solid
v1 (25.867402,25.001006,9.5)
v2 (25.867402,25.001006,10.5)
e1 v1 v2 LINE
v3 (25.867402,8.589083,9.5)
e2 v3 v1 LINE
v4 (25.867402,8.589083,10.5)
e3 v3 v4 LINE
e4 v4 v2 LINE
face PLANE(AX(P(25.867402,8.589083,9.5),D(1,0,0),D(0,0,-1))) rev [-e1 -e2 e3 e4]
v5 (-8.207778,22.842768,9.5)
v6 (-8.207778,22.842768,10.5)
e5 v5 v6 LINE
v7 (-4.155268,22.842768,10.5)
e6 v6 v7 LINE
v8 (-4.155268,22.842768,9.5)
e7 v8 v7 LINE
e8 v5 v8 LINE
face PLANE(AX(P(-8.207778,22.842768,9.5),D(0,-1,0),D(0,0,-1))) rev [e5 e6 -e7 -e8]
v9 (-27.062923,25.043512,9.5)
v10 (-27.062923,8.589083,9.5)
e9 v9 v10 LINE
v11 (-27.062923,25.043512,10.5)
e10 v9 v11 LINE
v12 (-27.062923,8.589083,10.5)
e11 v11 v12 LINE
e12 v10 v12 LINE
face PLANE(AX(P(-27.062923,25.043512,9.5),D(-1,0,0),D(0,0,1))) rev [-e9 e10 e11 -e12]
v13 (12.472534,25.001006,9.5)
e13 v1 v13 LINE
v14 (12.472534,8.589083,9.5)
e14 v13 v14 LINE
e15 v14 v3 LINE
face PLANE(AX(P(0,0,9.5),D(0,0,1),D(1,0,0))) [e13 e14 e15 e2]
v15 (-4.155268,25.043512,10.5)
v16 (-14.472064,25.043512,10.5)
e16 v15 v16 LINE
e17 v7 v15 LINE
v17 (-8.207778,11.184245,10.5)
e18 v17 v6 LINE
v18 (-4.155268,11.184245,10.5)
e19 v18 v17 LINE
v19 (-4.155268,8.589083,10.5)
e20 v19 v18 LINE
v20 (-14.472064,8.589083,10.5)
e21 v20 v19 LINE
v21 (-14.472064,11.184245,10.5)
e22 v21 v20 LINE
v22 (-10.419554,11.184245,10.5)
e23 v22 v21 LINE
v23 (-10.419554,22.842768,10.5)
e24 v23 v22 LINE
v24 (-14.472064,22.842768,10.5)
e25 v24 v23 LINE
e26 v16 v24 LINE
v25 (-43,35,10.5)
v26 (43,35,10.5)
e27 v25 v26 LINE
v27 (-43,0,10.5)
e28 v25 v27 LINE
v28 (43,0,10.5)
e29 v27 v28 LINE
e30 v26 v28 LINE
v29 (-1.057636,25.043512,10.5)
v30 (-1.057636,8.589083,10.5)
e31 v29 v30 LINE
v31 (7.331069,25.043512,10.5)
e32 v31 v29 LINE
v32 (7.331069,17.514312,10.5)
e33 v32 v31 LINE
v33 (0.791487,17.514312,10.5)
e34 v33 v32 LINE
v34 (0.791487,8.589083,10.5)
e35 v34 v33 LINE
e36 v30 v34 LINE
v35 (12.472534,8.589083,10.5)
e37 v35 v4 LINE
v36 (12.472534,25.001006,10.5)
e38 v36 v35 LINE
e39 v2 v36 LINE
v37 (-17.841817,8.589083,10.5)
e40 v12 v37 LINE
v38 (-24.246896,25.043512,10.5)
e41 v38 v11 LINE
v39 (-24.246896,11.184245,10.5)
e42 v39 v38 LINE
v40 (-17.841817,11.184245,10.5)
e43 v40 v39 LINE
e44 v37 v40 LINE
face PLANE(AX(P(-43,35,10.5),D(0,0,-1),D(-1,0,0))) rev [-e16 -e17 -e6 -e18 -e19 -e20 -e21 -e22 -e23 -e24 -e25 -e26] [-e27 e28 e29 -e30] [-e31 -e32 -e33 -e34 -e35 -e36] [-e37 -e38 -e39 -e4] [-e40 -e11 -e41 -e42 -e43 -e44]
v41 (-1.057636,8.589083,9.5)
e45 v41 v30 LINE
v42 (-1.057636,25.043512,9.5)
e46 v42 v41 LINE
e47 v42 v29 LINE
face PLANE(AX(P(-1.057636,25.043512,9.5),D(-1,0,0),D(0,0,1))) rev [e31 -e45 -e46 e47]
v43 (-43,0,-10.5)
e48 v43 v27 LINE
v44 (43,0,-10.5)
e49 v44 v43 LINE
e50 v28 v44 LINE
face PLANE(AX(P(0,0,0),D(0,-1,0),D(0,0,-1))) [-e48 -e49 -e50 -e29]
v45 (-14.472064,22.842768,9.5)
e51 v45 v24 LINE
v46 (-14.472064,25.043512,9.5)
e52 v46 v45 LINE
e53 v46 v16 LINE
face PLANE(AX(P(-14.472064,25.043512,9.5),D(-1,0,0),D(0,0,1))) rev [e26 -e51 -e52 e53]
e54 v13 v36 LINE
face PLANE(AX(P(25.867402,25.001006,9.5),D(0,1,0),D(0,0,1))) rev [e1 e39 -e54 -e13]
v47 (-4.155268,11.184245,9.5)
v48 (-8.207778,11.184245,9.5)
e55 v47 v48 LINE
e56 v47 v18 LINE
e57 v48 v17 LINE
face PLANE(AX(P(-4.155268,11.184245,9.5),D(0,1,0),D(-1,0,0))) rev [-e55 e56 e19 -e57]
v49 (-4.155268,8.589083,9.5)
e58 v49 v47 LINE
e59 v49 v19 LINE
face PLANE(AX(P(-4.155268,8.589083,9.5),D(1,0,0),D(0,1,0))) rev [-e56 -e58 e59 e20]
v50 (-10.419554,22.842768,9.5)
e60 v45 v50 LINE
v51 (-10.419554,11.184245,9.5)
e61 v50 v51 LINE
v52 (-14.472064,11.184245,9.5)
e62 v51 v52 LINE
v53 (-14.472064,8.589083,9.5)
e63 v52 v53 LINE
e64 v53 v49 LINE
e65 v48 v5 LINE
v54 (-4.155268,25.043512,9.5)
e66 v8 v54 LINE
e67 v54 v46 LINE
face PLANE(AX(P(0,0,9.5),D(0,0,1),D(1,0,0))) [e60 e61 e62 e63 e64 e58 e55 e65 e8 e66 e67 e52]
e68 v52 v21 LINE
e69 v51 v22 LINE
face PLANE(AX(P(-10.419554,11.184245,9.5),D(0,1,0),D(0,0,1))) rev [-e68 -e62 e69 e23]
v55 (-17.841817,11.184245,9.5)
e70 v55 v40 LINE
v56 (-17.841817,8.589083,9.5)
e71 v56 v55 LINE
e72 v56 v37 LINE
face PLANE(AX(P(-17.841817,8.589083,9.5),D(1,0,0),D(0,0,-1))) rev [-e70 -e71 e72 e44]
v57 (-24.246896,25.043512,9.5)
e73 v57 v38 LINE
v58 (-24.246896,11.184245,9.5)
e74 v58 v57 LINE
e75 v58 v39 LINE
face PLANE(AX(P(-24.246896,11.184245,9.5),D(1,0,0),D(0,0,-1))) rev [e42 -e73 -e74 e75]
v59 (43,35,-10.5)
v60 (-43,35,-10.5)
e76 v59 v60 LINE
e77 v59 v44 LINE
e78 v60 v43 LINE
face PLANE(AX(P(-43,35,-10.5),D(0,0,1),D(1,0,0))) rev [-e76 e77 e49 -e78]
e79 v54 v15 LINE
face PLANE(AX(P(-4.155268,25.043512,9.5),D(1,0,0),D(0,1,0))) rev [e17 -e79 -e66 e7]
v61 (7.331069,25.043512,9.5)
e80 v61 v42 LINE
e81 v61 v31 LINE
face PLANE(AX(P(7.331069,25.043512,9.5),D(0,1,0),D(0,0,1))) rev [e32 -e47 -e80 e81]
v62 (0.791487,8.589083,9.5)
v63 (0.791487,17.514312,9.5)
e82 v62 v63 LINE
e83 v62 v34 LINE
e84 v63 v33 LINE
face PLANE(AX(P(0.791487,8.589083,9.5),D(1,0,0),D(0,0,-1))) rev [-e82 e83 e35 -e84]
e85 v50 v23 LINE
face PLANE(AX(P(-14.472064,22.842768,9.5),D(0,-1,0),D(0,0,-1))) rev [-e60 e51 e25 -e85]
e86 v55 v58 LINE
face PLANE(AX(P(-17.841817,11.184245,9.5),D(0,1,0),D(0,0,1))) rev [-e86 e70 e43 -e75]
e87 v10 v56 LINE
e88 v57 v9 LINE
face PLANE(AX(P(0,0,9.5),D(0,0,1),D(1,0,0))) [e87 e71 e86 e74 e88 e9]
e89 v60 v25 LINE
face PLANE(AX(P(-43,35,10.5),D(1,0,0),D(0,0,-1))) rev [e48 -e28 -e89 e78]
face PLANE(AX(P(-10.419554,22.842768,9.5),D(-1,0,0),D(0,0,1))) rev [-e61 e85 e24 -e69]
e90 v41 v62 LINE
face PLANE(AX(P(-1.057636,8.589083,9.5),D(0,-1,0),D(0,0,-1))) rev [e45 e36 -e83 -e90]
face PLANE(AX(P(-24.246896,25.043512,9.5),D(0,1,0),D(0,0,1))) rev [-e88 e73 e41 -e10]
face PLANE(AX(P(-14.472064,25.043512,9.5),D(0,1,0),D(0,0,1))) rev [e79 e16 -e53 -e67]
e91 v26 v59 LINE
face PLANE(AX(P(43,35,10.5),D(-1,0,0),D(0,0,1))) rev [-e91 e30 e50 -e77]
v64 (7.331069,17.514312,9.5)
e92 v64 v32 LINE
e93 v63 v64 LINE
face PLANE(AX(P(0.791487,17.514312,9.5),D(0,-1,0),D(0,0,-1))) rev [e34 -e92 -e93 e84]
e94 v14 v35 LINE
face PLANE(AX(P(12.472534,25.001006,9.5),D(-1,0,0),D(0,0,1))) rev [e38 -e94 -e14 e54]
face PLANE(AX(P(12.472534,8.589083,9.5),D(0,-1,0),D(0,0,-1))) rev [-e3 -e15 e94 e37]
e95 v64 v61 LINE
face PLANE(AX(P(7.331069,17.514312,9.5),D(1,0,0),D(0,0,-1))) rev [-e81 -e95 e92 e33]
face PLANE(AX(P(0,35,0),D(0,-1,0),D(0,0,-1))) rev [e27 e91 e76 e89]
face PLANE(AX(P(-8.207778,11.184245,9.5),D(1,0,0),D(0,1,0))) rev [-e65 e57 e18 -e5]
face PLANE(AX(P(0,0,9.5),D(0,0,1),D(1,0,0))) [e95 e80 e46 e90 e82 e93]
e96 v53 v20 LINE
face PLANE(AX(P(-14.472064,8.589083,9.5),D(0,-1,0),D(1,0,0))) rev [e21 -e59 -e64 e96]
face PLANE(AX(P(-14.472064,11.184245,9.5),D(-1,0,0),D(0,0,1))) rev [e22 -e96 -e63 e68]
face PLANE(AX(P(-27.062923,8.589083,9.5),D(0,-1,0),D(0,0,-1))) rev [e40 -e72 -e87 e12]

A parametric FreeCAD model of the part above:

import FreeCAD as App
import Part
import Sketcher

doc = App.newDocument("Part")
body = doc.addObject("PartDesign::Body", "Body")

sketch1 = body.newObject("Sketcher::SketchObject", "Sketch")
sketch1.AttachmentSupport = (doc.getObject("XZ_Plane"), [""])
sketch1.MapMode = "FlatFace"
sketch1.addGeometry(Part.LineSegment(App.Vector(-43, -10, 0), App.Vector(-43, 10, 0)), False)
sketch1.addGeometry(Part.LineSegment(App.Vector(-43, 10, 0), App.Vector(43, 10, 0)), False)
sketch1.addGeometry(Part.LineSegment(App.Vector(43, 10, 0), App.Vector(43, -10, 0)), False)
sketch1.addGeometry(Part.LineSegment(App.Vector(43, -10, 0), App.Vector(-43, -10, 0)), False)
sketch1.addConstraint(Sketcher.Constraint("Coincident", 0, 2, 1, 1))
sketch1.addConstraint(Sketcher.Constraint("Coincident", 1, 2, 2, 1))
sketch1.addConstraint(Sketcher.Constraint("Coincident", 2, 2, 3, 1))
sketch1.addConstraint(Sketcher.Constraint("Coincident", 3, 2, 0, 1))
sketch1.addConstraint(Sketcher.Constraint("Vertical", 0))
sketch1.addConstraint(Sketcher.Constraint("Horizontal", 1))
sketch1.addConstraint(Sketcher.Constraint("Vertical", 2))
sketch1.addConstraint(Sketcher.Constraint("Horizontal", 3))
sketch1.addConstraint(Sketcher.Constraint("Symmetric", 0, 2, 2, 2, -1, 1))
sketch1.addConstraint(Sketcher.Constraint("DistanceX", 1, 1, 1, 2, 86.0))
sketch1.addConstraint(Sketcher.Constraint("DistanceY", 0, 1, 0, 2, 21.0))
pad1 = body.newObject("PartDesign::Pad", "Pad")
pad1.Profile = sketch1
pad1.Length = 35
pad1.Reversed = True

sketch2 = body.newObject("Sketcher::SketchObject", "Sketch001")
sketch2.AttachmentSupport = (doc.getObject("XY_Plane"), [""])
sketch2.MapMode = "FlatFace"
sketch2.AttachmentOffset = App.Placement(App.Vector(0, 0, 10.5), App.Rotation())
sketch2.addGeometry(Part.LineSegment(App.Vector(-27.1, 25, 0), App.Vector(-27.1, 8.6, 0)), False)
sketch2.addGeometry(Part.LineSegment(App.Vector(-27.1, 8.6, 0), App.Vector(-17.8, 8.6, 0)), False)
sketch2.addGeometry(Part.LineSegment(App.Vector(-17.8, 8.6, 0), App.Vector(-17.8, 11.2, 0)), False)
sketch2.addGeometry(Part.LineSegment(App.Vector(-17.8, 11.2, 0), App.Vector(-24.2, 11.2, 0)), False)
sketch2.addGeometry(Part.LineSegment(App.Vector(-24.2, 11.2, 0), App.Vector(-24.2, 25, 0)), False)
sketch2.addGeometry(Part.LineSegment(App.Vector(-24.2, 25, 0), App.Vector(-27.1, 25, 0)), False)
sketch2.addGeometry(Part.LineSegment(App.Vector(-4.2, 25, 0), App.Vector(-14.5, 25, 0)), False)
sketch2.addGeometry(Part.LineSegment(App.Vector(-14.5, 25, 0), App.Vector(-14.5, 22.8, 0)), False)
sketch2.addGeometry(Part.LineSegment(App.Vector(-14.5, 22.8, 0), App.Vector(-10.4, 22.8, 0)), False)
sketch2.addGeometry(Part.LineSegment(App.Vector(-10.4, 22.8, 0), App.Vector(-10.4, 11.2, 0)), False)
sketch2.addGeometry(Part.LineSegment(App.Vector(-10.4, 11.2, 0), App.Vector(-14.5, 11.2, 0)), False)
sketch2.addGeometry(Part.LineSegment(App.Vector(-14.5, 11.2, 0), App.Vector(-14.5, 8.6, 0)), False)
sketch2.addGeometry(Part.LineSegment(App.Vector(-14.5, 8.6, 0), App.Vector(-4.2, 8.6, 0)), False)
sketch2.addGeometry(Part.LineSegment(App.Vector(-4.2, 8.6, 0), App.Vector(-4.2, 11.2, 0)), False)
sketch2.addGeometry(Part.LineSegment(App.Vector(-4.2, 11.2, 0), App.Vector(-8.2, 11.2, 0)), False)
sketch2.addGeometry(Part.LineSegment(App.Vector(-8.2, 11.2, 0), App.Vector(-8.2, 22.8, 0)), False)
sketch2.addGeometry(Part.LineSegment(App.Vector(-8.2, 22.8, 0), App.Vector(-4.2, 22.8, 0)), False)
sketch2.addGeometry(Part.LineSegment(App.Vector(-4.2, 22.8, 0), App.Vector(-4.2, 25, 0)), False)
sketch2.addGeometry(Part.LineSegment(App.Vector(-1.1, 25, 0), App.Vector(-1.1, 8.6, 0)), False)
sketch2.addGeometry(Part.LineSegment(App.Vector(-1.1, 8.6, 0), App.Vector(0.8, 8.6, 0)), False)
sketch2.addGeometry(Part.LineSegment(App.Vector(0.8, 8.6, 0), App.Vector(0.8, 17.5, 0)), False)
sketch2.addGeometry(Part.LineSegment(App.Vector(0.8, 17.5, 0), App.Vector(7.3, 17.5, 0)), False)
sketch2.addGeometry(Part.LineSegment(App.Vector(7.3, 17.5, 0), App.Vector(7.3, 25, 0)), False)
sketch2.addGeometry(Part.LineSegment(App.Vector(7.3, 25, 0), App.Vector(-1.1, 25, 0)), False)
sketch2.addGeometry(Part.LineSegment(App.Vector(12.5, 25, 0), App.Vector(12.5, 8.6, 0)), False)
sketch2.addGeometry(Part.LineSegment(App.Vector(12.5, 8.6, 0), App.Vector(25.9, 8.6, 0)), False)
sketch2.addGeometry(Part.LineSegment(App.Vector(25.9, 8.6, 0), App.Vector(25.9, 25, 0)), False)
sketch2.addGeometry(Part.LineSegment(App.Vector(25.9, 25, 0), App.Vector(12.5, 25, 0)), False)
sketch2.addConstraint(Sketcher.Constraint("Coincident", 0, 2, 1, 1))
sketch2.addConstraint(Sketcher.Constraint("Coincident", 1, 2, 2, 1))
sketch2.addConstraint(Sketcher.Constraint("Coincident", 2, 2, 3, 1))
sketch2.addConstraint(Sketcher.Constraint("Coincident", 3, 2, 4, 1))
sketch2.addConstraint(Sketcher.Constraint("Coincident", 4, 2, 5, 1))
sketch2.addConstraint(Sketcher.Constraint("Coincident", 5, 2, 0, 1))
sketch2.addConstraint(Sketcher.Constraint("Coincident", 6, 2, 7, 1))
sketch2.addConstraint(Sketcher.Constraint("Coincident", 7, 2, 8, 1))
sketch2.addConstraint(Sketcher.Constraint("Coincident", 8, 2, 9, 1))
sketch2.addConstraint(Sketcher.Constraint("Coincident", 9, 2, 10, 1))
sketch2.addConstraint(Sketcher.Constraint("Coincident", 10, 2, 11, 1))
sketch2.addConstraint(Sketcher.Constraint("Coincident", 11, 2, 12, 1))
sketch2.addConstraint(Sketcher.Constraint("Coincident", 12, 2, 13, 1))
sketch2.addConstraint(Sketcher.Constraint("Coincident", 13, 2, 14, 1))
sketch2.addConstraint(Sketcher.Constraint("Coincident", 14, 2, 15, 1))
sketch2.addConstraint(Sketcher.Constraint("Coincident", 15, 2, 16, 1))
sketch2.addConstraint(Sketcher.Constraint("Coincident", 16, 2, 17, 1))
sketch2.addConstraint(Sketcher.Constraint("Coincident", 17, 2, 6, 1))
sketch2.addConstraint(Sketcher.Constraint("Coincident", 18, 2, 19, 1))
sketch2.addConstraint(Sketcher.Constraint("Coincident", 19, 2, 20, 1))
sketch2.addConstraint(Sketcher.Constraint("Coincident", 20, 2, 21, 1))
sketch2.addConstraint(Sketcher.Constraint("Coincident", 21, 2, 22, 1))
sketch2.addConstraint(Sketcher.Constraint("Coincident", 22, 2, 23, 1))
sketch2.addConstraint(Sketcher.Constraint("Coincident", 23, 2, 18, 1))
sketch2.addConstraint(Sketcher.Constraint("Coincident", 24, 2, 25, 1))
sketch2.addConstraint(Sketcher.Constraint("Coincident", 25, 2, 26, 1))
sketch2.addConstraint(Sketcher.Constraint("Coincident", 26, 2, 27, 1))
sketch2.addConstraint(Sketcher.Constraint("Coincident", 27, 2, 24, 1))
sketch2.addConstraint(Sketcher.Constraint("Vertical", 0))
sketch2.addConstraint(Sketcher.Constraint("Horizontal", 1))
sketch2.addConstraint(Sketcher.Constraint("Vertical", 2))
sketch2.addConstraint(Sketcher.Constraint("Horizontal", 3))
sketch2.addConstraint(Sketcher.Constraint("Vertical", 4))
sketch2.addConstraint(Sketcher.Constraint("Horizontal", 5))
sketch2.addConstraint(Sketcher.Constraint("Horizontal", 6))
sketch2.addConstraint(Sketcher.Constraint("Vertical", 7))
sketch2.addConstraint(Sketcher.Constraint("Horizontal", 8))
sketch2.addConstraint(Sketcher.Constraint("Vertical", 9))
sketch2.addConstraint(Sketcher.Constraint("Horizontal", 10))
sketch2.addConstraint(Sketcher.Constraint("Vertical", 11))
sketch2.addConstraint(Sketcher.Constraint("Horizontal", 12))
sketch2.addConstraint(Sketcher.Constraint("Vertical", 13))
sketch2.addConstraint(Sketcher.Constraint("Horizontal", 14))
sketch2.addConstraint(Sketcher.Constraint("Vertical", 15))
sketch2.addConstraint(Sketcher.Constraint("Horizontal", 16))
sketch2.addConstraint(Sketcher.Constraint("Vertical", 17))
sketch2.addConstraint(Sketcher.Constraint("Vertical", 18))
sketch2.addConstraint(Sketcher.Constraint("Horizontal", 19))
sketch2.addConstraint(Sketcher.Constraint("Vertical", 20))
sketch2.addConstraint(Sketcher.Constraint("Horizontal", 21))
sketch2.addConstraint(Sketcher.Constraint("Vertical", 22))
sketch2.addConstraint(Sketcher.Constraint("Horizontal", 23))
sketch2.addConstraint(Sketcher.Constraint("Vertical", 24))
sketch2.addConstraint(Sketcher.Constraint("Horizontal", 25))
sketch2.addConstraint(Sketcher.Constraint("Vertical", 26))
sketch2.addConstraint(Sketcher.Constraint("Horizontal", 27))
sketch2.addConstraint(Sketcher.Constraint("Horizontal", 5, 2, 6, 2))
sketch2.addConstraint(Sketcher.Constraint("Horizontal", 3, 2, 9, 2))
sketch2.addConstraint(Sketcher.Constraint("Horizontal", 1, 2, 11, 2))
sketch2.addConstraint(Sketcher.Constraint("Horizontal", 10, 2, 13, 2))
sketch2.addConstraint(Sketcher.Constraint("Horizontal", 8, 2, 15, 2))
sketch2.addConstraint(Sketcher.Constraint("Horizontal", 12, 2, 18, 2))
sketch2.addConstraint(Sketcher.Constraint("Horizontal", 17, 2, 22, 2))
sketch2.addConstraint(Sketcher.Constraint("Horizontal", 19, 2, 24, 2))
sketch2.addConstraint(Sketcher.Constraint("Vertical", 7, 2, 10, 2))
sketch2.addConstraint(Sketcher.Constraint("Vertical", 13, 2, 16, 2))
sketch2.addConstraint(Sketcher.Constraint("Equal", 10, 14))
sketch2.addConstraint(Sketcher.Constraint("DistanceY", 22, 1, 22, 2, 7.529199))
sketch2.addConstraint(Sketcher.Constraint("DistanceX", 3, 2, 3, 1, 6.40508))
sketch2.addConstraint(Sketcher.Constraint("DistanceX", 8, 1, 8, 2, 4.05251))
sketch2.addConstraint(Sketcher.Constraint("DistanceX", 21, 1, 21, 2, 6.539582))
sketch2.addConstraint(Sketcher.Constraint("DistanceY", 0, 2, 0, 1, 16.454428))
sketch2.addConstraint(Sketcher.Constraint("DistanceY", 2, 1, 2, 2, 2.595162))
sketch2.addConstraint(Sketcher.Constraint("DistanceX", -1, 1, 25, 2, 25.867402))
sketch2.addConstraint(Sketcher.Constraint("DistanceX", 12, 2, 24, 2, 16.627801))
sketch2.addConstraint(Sketcher.Constraint("DistanceX", 1, 1, 1, 2, 9.221106))
sketch2.addConstraint(Sketcher.Constraint("DistanceX", 6, 2, 6, 1, 10.316797))
sketch2.addConstraint(Sketcher.Constraint("DistanceX", 19, 1, 19, 2, 1.849123))
sketch2.addConstraint(Sketcher.Constraint("DistanceX", 25, 1, 25, 2, 13.394868))
sketch2.addConstraint(Sketcher.Constraint("DistanceY", 7, 2, 7, 1, 2.200743))
sketch2.addConstraint(Sketcher.Constraint("DistanceY", 24, 2, 24, 1, 16.411923))
sketch2.addConstraint(Sketcher.Constraint("DistanceY", -1, 1, 4, 2, 25.043512))
sketch2.addConstraint(Sketcher.Constraint("DistanceX", -1, 1, 21, 2, 7.331069))
sketch2.addConstraint(Sketcher.Constraint("DistanceX", 4, 2, 6, 2, 9.774832))
pocket1 = body.newObject("PartDesign::Pocket", "Pocket")
pocket1.Profile = sketch2
pocket1.Length = 1

doc.recompute()
